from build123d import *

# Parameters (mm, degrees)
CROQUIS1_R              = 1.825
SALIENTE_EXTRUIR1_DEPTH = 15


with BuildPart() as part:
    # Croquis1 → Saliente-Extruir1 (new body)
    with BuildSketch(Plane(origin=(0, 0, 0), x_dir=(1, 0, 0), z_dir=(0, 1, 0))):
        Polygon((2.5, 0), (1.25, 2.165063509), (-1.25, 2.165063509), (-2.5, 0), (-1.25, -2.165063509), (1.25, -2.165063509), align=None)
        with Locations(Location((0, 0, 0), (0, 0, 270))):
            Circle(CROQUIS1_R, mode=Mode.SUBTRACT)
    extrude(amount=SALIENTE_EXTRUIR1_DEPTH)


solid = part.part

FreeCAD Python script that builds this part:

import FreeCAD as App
import Part
import Sketcher
from FreeCAD import Vector
Q = App.Units.Quantity

doc = App.newDocument("Part")
body = doc.addObject("PartDesign::Body", "Body")

# Sketch on XZ plane
sketch1 = body.newObject("Sketcher::SketchObject", "Sketch")
sketch1.AttachmentSupport = (doc.getObject("XZ_Plane"), [""])
sketch1.MapMode = "FlatFace"
sketch1.addGeometry(Part.LineSegment(Vector(2.5, 0, 0), Vector(1.2, -2.2, 0)), False)
sketch1.addGeometry(Part.LineSegment(Vector(1.2, -2.2, 0), Vector(-1.2, -2.2, 0)), False)
sketch1.addGeometry(Part.LineSegment(Vector(-1.2, -2.2, 0), Vector(-2.5, 0, 0)), False)
sketch1.addGeometry(Part.LineSegment(Vector(-2.5, 0, 0), Vector(-1.2, 2.2, 0)), False)
sketch1.addGeometry(Part.LineSegment(Vector(-1.2, 2.2, 0), Vector(1.2, 2.2, 0)), False)
sketch1.addGeometry(Part.LineSegment(Vector(1.2, 2.2, 0), Vector(2.5, 0, 0)), False)
sketch1.addGeometry(Part.Circle(Vector(0, 0, 0), Vector(0, 0, 1), 1.8), False)
sketch1.addConstraint(Sketcher.Constraint("Coincident", 0, 2, 1, 1))
sketch1.addConstraint(Sketcher.Constraint("Coincident", 1, 2, 2, 1))
sketch1.addConstraint(Sketcher.Constraint("Coincident", 2, 2, 3, 1))
sketch1.addConstraint(Sketcher.Constraint("Coincident", 3, 2, 4, 1))
sketch1.addConstraint(Sketcher.Constraint("Coincident", 4, 2, 5, 1))
sketch1.addConstraint(Sketcher.Constraint("Coincident", 5, 2, 0, 1))
sketch1.addConstraint(Sketcher.Constraint("Horizontal", 1))
sketch1.addConstraint(Sketcher.Constraint("Horizontal", 4))
sketch1.addConstraint(Sketcher.Constraint("Coincident", 6, 3, -1, 1))
sketch1.addConstraint(Sketcher.Constraint("Symmetric", 0, 2, 3, 2, -1, 1))
sketch1.addConstraint(Sketcher.Constraint("Symmetric", 2, 2, 5, 2, -1, 1))
sketch1.addConstraint(Sketcher.Constraint("PointOnObject", 2, 2, -1))
sketch1.addConstraint(Sketcher.Constraint("Parallel", 2, 5))
sketch1.addConstraint(Sketcher.Constraint("Vertical", 1, 2, 3, 2))
sketch1.addConstraint(Sketcher.Constraint("Diameter", 6, 3.65))
sketch1.addConstraint(Sketcher.Constraint("Angle", 0, Q("-120 deg")))
sketch1.addConstraint(Sketcher.Constraint("DistanceX", 1, 2, 1, 1, 2.5))
sketch1.addConstraint(Sketcher.Constraint("Distance", 0, 2.5))
pad1 = body.newObject("PartDesign::Pad", "Pad")
pad1.Profile = sketch1
pad1.Length = 15
pad1.Reversed = True

doc.recompute()
